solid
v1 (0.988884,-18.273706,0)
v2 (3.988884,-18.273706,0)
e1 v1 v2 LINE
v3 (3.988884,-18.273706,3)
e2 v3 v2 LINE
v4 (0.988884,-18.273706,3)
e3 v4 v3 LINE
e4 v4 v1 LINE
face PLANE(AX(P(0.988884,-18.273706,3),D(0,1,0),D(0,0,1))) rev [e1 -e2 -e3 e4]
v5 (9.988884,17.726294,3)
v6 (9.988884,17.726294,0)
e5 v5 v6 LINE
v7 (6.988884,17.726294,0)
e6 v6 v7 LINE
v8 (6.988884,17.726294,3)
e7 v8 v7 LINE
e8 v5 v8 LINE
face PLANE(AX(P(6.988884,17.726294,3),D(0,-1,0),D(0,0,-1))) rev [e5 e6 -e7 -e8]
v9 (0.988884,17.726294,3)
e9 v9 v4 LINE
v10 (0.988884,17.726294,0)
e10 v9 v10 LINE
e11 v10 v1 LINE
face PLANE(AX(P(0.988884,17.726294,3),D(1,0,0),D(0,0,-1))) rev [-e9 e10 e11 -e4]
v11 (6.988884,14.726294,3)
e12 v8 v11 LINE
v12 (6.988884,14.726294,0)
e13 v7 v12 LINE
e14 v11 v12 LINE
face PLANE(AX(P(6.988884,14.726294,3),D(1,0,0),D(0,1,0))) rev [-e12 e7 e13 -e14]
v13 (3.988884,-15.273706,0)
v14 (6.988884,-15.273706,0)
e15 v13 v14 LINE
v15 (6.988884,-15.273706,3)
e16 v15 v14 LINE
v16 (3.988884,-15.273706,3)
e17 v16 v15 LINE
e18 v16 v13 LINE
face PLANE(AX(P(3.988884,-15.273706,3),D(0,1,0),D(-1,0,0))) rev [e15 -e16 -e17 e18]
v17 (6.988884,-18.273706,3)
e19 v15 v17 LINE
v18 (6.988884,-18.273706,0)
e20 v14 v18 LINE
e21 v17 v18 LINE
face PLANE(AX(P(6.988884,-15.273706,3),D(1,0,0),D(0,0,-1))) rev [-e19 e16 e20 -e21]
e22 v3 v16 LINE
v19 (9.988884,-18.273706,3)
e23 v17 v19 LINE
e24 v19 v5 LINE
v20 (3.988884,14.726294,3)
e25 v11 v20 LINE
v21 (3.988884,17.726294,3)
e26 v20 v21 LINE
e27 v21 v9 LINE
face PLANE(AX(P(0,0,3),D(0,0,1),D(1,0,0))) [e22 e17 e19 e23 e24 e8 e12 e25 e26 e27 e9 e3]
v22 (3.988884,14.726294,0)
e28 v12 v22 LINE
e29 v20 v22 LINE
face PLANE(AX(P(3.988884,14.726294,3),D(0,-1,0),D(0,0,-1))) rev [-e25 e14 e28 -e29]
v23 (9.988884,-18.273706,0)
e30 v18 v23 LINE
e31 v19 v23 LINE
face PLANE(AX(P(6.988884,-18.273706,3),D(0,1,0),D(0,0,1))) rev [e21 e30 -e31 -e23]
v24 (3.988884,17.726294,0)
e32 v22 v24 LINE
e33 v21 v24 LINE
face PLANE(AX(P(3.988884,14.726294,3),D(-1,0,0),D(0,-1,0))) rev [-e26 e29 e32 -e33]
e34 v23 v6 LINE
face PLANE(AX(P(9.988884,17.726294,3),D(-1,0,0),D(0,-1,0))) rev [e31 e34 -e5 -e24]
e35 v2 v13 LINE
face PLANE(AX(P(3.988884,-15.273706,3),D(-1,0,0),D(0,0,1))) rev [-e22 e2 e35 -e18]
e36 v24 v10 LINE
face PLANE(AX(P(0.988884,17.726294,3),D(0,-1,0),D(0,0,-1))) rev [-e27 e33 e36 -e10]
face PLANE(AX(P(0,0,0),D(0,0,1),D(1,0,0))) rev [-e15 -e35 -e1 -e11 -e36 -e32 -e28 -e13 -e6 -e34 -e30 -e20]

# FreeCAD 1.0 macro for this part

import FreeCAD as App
import Part
import Sketcher


def add_polygon(sketch, points):
    """Adds a closed chain of lines whose ends are joined by coincident constraints."""
    first, n = sketch.GeometryCount, len(points)
    for a, b in zip(points, points[1:] + points[:1]):
        sketch.addGeometry(Part.LineSegment(App.Vector(*a, 0), App.Vector(*b, 0)), False)
    for i in range(n):
        sketch.addConstraint(Sketcher.Constraint("Coincident", first + i, 2, first + (i + 1) % n, 1))

doc = App.newDocument("Part")
body = doc.addObject("PartDesign::Body", "Body")

# Sketch on XY plane
sketch1 = body.newObject("Sketcher::SketchObject", "Sketch")
sketch1.AttachmentSupport = (doc.getObject("XY_Plane"), [""])
sketch1.MapMode = "FlatFace"
add_polygon(sketch1, [(3.988884, 17.726294), (0.988884, 17.726294), (0.988884, -18.273706), (3.988884, -18.273706), (3.988884, -15.273706), (6.988884, -15.273706), (6.988884, -18.273706), (9.988884, -18.273706), (9.988884, 17.726294), (6.988884, 17.726294), (6.988884, 14.726294), (3.988884, 14.726294)])  # lines 0-11
sketch1.addConstraint([
    Sketcher.Constraint("Horizontal", 0),
    Sketcher.Constraint("Vertical", 1),
    Sketcher.Constraint("Horizontal", 2),
    Sketcher.Constraint("Vertical", 3),
    Sketcher.Constraint("Horizontal", 4),
    Sketcher.Constraint("Vertical", 5),
    Sketcher.Constraint("Horizontal", 6),
    Sketcher.Constraint("Vertical", 7),
    Sketcher.Constraint("Horizontal", 8),
    Sketcher.Constraint("Vertical", 9),
    Sketcher.Constraint("Horizontal", 10),
    Sketcher.Constraint("Vertical", 11),
    Sketcher.Constraint("Horizontal", 2, 2, 5, 2),
    Sketcher.Constraint("Horizontal", 0, 2, 7, 2),
    Sketcher.Constraint("Vertical", 5, 2, 8, 2),
    Sketcher.Constraint("Vertical", 3, 2, 10, 2),
    Sketcher.Constraint("Equal", 2, 4),
    Sketcher.Constraint("Equal", 4, 6),
    Sketcher.Constraint("Equal", 10, 3),
    Sketcher.Constraint("Equal", 5, 9),
    Sketcher.Constraint("DistanceX", 0, 2, 0, 1, 3.0),
    Sketcher.Constraint("DistanceY", 1, 2, 1, 1, 36.0),
    Sketcher.Constraint("DistanceX", -1, 1, 0, 2, 0.988884),
    Sketcher.Constraint("DistanceY", -1, 1, 0, 2, 17.726294),
])
pad1 = body.newObject("PartDesign::Pad", "Pad")
pad1.Profile = sketch1
pad1.Length = 3

doc.recompute()
